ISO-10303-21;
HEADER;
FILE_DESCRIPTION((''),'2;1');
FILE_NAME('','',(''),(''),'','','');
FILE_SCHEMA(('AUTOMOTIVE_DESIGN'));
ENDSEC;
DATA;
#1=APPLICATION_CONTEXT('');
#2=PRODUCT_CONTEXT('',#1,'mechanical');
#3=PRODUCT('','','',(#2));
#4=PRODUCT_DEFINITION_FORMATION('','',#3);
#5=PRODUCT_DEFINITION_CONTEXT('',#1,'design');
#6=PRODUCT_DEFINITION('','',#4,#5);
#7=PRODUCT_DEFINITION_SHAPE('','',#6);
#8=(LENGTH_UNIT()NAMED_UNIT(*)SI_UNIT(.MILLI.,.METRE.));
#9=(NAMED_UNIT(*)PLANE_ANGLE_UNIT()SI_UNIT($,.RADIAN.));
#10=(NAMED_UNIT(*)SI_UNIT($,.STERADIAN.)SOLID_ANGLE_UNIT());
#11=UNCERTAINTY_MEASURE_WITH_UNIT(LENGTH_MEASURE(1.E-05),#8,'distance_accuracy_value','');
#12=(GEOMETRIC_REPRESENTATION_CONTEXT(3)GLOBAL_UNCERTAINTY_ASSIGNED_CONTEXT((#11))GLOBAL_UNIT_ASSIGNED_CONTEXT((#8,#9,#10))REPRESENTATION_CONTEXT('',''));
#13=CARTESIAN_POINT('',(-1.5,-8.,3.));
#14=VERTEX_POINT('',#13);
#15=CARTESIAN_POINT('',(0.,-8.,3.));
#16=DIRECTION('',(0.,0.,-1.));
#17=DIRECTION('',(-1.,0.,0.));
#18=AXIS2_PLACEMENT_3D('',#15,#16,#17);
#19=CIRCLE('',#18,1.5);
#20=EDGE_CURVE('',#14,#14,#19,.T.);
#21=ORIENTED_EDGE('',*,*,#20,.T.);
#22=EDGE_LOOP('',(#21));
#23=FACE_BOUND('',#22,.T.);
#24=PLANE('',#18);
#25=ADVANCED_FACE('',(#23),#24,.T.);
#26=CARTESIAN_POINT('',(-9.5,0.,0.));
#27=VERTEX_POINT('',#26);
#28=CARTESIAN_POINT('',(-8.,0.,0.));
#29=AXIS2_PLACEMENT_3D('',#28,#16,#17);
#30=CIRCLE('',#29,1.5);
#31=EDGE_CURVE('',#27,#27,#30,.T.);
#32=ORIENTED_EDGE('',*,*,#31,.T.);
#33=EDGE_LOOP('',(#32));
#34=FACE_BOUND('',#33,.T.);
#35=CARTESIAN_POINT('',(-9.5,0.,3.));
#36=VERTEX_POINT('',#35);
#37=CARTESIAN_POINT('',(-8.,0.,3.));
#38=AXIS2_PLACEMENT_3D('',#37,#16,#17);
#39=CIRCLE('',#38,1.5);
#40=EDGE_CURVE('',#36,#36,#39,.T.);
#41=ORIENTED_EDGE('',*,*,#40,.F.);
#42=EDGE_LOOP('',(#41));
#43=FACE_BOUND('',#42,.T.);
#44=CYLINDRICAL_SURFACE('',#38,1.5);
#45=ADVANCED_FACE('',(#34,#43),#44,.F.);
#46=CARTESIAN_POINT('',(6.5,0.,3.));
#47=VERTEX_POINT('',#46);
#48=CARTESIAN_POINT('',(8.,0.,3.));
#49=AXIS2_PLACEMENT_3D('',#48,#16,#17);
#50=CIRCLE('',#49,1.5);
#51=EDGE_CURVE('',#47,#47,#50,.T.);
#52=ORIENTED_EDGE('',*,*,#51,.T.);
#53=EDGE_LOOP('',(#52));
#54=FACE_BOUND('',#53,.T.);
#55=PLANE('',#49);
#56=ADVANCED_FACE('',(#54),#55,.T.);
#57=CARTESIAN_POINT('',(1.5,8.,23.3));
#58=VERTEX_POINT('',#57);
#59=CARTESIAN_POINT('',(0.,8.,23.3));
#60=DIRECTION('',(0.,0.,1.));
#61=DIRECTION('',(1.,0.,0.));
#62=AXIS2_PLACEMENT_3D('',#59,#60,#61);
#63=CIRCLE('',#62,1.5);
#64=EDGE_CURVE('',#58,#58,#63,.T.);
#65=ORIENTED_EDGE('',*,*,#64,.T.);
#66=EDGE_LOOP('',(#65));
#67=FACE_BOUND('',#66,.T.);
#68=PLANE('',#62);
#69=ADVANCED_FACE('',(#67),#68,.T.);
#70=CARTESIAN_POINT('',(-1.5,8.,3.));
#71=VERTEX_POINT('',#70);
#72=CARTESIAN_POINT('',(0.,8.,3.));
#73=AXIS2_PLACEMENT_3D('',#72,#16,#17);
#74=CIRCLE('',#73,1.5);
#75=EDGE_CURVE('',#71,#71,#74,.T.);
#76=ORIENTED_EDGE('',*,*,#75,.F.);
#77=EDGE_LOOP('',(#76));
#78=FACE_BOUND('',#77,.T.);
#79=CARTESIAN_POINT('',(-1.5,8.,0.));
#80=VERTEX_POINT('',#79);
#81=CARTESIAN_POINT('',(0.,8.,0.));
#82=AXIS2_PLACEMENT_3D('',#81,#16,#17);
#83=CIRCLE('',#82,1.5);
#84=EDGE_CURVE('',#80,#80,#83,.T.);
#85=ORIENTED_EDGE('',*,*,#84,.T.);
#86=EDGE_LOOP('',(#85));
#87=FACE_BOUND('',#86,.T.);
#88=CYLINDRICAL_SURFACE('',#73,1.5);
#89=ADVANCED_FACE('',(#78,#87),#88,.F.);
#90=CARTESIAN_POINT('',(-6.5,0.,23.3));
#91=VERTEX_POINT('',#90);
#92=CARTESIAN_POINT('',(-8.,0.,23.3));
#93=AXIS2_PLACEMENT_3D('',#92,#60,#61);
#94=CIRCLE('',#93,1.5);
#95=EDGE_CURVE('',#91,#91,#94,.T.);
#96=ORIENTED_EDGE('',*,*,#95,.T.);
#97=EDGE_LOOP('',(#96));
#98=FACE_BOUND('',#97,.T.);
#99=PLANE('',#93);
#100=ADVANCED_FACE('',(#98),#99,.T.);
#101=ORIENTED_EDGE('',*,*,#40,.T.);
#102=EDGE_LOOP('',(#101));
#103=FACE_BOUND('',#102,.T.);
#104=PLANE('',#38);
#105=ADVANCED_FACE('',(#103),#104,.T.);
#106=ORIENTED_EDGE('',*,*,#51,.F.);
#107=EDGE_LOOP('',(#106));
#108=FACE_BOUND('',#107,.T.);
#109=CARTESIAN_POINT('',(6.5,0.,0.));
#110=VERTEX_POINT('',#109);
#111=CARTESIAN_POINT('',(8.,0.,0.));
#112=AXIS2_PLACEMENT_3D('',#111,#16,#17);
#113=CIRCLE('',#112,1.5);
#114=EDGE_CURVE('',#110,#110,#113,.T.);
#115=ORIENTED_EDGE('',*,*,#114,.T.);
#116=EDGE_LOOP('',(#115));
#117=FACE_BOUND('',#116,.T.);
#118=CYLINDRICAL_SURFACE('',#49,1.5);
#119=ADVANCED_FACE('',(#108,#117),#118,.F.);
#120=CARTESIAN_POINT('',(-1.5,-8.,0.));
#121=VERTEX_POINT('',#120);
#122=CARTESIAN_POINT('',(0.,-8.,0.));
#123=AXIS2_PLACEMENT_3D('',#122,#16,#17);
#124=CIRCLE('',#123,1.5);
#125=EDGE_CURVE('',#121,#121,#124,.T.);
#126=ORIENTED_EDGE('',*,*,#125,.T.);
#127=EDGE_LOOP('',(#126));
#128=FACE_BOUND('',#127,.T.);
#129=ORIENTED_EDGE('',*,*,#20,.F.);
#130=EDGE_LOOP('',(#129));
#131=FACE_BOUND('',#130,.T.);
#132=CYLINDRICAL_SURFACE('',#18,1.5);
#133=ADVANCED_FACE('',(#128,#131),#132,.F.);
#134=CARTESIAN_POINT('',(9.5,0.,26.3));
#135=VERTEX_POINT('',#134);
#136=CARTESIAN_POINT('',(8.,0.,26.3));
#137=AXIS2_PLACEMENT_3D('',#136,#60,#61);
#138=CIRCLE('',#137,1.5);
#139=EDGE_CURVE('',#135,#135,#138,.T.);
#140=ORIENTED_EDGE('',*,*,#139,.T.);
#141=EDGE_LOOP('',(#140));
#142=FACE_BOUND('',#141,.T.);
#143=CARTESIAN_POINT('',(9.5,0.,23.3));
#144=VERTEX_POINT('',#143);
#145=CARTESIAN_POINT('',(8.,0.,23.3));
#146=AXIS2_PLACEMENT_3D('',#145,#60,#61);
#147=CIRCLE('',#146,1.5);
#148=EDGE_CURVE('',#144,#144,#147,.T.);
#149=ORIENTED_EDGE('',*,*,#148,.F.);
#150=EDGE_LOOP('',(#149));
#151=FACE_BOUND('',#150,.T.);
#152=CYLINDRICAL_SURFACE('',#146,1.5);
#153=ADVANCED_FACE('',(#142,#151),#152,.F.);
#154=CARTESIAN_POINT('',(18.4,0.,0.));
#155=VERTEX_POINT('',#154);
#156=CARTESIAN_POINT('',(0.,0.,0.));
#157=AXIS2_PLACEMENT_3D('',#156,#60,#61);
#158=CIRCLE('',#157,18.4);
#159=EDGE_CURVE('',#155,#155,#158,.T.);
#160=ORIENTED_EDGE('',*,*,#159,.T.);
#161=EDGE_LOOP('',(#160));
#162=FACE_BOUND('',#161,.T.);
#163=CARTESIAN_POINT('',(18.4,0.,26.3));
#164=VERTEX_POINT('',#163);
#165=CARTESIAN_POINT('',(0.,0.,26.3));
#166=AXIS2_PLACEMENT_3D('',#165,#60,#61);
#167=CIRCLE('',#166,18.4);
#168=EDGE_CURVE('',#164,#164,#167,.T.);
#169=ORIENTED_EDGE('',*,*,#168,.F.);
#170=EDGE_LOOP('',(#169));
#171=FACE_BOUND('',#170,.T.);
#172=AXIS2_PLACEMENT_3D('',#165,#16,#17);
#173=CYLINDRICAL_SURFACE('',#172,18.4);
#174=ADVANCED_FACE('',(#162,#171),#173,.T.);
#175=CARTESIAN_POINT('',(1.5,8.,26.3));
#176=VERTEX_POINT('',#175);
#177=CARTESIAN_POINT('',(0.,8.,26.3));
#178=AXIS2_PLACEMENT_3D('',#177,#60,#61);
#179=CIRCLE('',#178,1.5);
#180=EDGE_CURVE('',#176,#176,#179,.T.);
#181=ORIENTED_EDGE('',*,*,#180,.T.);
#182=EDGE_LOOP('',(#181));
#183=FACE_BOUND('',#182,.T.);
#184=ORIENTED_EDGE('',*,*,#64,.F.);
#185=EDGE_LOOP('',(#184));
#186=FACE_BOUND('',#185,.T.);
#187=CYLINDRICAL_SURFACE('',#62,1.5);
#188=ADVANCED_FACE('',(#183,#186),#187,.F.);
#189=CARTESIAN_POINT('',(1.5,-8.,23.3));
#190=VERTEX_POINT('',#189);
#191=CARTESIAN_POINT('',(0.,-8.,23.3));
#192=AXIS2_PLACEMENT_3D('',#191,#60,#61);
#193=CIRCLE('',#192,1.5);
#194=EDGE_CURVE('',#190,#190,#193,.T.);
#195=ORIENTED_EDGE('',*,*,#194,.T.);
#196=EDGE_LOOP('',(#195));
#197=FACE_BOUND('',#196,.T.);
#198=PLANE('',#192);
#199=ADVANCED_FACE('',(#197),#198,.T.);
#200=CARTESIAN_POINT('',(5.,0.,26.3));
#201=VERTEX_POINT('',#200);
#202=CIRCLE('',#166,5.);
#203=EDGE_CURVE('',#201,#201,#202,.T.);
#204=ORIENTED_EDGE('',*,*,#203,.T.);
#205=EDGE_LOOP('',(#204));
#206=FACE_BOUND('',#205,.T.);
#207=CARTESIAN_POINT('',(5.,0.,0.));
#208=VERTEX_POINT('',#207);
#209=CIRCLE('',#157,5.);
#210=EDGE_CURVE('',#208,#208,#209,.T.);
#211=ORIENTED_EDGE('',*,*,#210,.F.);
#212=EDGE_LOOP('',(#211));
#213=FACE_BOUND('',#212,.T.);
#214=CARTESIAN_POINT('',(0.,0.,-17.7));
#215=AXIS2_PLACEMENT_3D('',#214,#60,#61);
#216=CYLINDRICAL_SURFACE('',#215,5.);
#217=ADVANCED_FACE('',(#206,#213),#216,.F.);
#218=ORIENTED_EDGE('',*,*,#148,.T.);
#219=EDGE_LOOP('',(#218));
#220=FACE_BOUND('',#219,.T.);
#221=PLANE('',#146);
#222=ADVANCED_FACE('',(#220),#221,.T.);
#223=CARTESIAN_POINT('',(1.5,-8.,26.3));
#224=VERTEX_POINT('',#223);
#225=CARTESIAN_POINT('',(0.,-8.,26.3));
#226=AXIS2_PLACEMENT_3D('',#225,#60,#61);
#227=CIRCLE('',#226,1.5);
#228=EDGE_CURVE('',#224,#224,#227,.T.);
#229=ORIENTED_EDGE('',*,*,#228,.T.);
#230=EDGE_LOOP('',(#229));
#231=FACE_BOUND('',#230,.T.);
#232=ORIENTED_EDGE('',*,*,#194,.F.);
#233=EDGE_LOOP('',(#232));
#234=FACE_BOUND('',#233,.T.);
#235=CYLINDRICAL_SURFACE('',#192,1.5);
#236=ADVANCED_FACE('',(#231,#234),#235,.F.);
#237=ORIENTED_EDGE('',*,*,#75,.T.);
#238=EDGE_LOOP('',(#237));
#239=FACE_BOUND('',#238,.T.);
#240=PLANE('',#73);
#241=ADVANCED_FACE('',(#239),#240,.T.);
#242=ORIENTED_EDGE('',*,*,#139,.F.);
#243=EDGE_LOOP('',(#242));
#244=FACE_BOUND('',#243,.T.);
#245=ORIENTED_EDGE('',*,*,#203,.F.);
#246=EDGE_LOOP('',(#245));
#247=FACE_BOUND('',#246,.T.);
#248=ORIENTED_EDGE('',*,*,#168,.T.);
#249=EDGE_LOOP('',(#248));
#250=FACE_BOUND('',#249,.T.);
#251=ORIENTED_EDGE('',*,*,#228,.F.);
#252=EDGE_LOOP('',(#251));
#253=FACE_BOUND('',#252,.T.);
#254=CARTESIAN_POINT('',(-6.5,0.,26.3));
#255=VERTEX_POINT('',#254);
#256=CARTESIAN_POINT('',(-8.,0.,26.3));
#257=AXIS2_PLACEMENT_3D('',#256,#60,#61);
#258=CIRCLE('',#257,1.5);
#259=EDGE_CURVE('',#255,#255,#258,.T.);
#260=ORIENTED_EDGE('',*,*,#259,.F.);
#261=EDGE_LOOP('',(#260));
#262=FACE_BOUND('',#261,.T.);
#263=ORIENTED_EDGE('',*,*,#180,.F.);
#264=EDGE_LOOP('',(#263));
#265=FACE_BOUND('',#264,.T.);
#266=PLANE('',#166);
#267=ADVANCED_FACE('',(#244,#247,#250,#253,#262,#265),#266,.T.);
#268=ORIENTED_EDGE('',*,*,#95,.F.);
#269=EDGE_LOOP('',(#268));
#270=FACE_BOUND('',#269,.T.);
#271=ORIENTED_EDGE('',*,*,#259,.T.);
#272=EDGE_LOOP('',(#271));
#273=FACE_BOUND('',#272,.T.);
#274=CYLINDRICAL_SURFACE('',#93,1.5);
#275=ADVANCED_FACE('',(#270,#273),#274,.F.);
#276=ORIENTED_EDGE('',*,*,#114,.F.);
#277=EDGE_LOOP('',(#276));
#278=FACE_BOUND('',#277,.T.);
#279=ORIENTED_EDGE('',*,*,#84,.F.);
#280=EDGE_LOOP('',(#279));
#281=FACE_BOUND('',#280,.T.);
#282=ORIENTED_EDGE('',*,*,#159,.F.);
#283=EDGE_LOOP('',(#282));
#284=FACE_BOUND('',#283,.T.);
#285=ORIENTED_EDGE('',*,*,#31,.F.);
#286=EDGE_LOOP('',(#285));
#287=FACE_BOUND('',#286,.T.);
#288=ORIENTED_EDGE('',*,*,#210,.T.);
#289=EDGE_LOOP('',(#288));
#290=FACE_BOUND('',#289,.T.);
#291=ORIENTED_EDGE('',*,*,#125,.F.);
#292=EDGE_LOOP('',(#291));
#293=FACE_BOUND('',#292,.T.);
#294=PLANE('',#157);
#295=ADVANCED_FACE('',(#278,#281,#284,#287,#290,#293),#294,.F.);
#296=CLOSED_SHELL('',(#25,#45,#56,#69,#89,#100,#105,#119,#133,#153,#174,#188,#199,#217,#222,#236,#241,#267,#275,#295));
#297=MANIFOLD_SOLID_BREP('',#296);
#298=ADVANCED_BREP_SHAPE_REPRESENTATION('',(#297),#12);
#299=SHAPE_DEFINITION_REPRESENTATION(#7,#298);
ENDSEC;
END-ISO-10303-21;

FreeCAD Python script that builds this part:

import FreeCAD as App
import Part
import Sketcher

doc = App.newDocument("Part")
body = doc.addObject("PartDesign::Body", "Body")

# Sketch on XY plane
sketch1 = doc.addObject("Sketcher::SketchObject", "Sketch")
body.addObject(sketch1)
sketch1.AttachmentSupport = (doc.XY_Plane, [""])
sketch1.MapMode = "FlatFace"
sketch1.addGeometry(Part.Circle(App.Vector(0, 0, 0), App.Vector(0, 0, 1), 18.4), False)
sketch1.addConstraint([
    Sketcher.Constraint("Coincident", 0, 3, -1, 1),
    Sketcher.Constraint("Diameter", 0, 36.8),
])
pad1 = doc.addObject("PartDesign::Pad", "Pad")
body.addObject(pad1)
pad1.Profile = sketch1
pad1.Length = 26.3

# Sketch on XY plane
sketch2 = doc.addObject("Sketcher::SketchObject", "Sketch001")
body.addObject(sketch2)
sketch2.AttachmentSupport = (doc.XY_Plane, [""])
sketch2.MapMode = "FlatFace"
sketch2.AttachmentOffset = App.Placement(App.Vector(0, 0, 26.3), App.Rotation())
sketch2.addGeometry([
    Part.Circle(App.Vector(0, 8, 0), App.Vector(0, 0, 1), 1.5),
    Part.Circle(App.Vector(8, 0, 0), App.Vector(0, 0, 1), 1.5),
    Part.Circle(App.Vector(0, -8, 0), App.Vector(0, 0, 1), 1.5),
    Part.Circle(App.Vector(-8, 0, 0), App.Vector(0, 0, 1), 1.5),
], False)
sketch2.addConstraint([
    Sketcher.Constraint("Equal", 0, 1),
    Sketcher.Constraint("Equal", 1, 2),
    Sketcher.Constraint("Equal", 2, 3),
    Sketcher.Constraint("Symmetric", 0, 3, 2, 3, -1, 1),
    Sketcher.Constraint("Symmetric", 1, 3, 3, 3, -1, 1),
    Sketcher.Constraint("PointOnObject", 0, 3, -2),
    Sketcher.Constraint("PointOnObject", 1, 3, -1),
    Sketcher.Constraint("Diameter", 0, 3.0),
    Sketcher.Constraint("DistanceY", -1, 1, 0, 3, 8.0),
    Sketcher.Constraint("DistanceX", -1, 1, 1, 3, 8.0),
])
pocket1 = doc.addObject("PartDesign::Pocket", "Pocket")
body.addObject(pocket1)
pocket1.Profile = sketch2
pocket1.Length = 3

# Sketch on XY plane
sketch3 = doc.addObject("Sketcher::SketchObject", "Sketch002")
body.addObject(sketch3)
sketch3.AttachmentSupport = (doc.XY_Plane, [""])
sketch3.MapMode = "FlatFace"
sketch3.AttachmentOffset = App.Placement(App.Vector(0, 0, 26.3), App.Rotation())
sketch3.addGeometry(Part.Circle(App.Vector(0, 0, 0), App.Vector(0, 0, 1), 5), False)
sketch3.addConstraint([
    Sketcher.Constraint("Coincident", 0, 3, -1, 1),
    Sketcher.Constraint("Diameter", 0, 10.0),
])
pocket2 = doc.addObject("PartDesign::Pocket", "Pocket001")
body.addObject(pocket2)
pocket2.Profile = sketch3
pocket2.Length = 44

# Sketch on XY plane
sketch4 = doc.addObject("Sketcher::SketchObject", "Sketch003")
body.addObject(sketch4)
sketch4.AttachmentSupport = (doc.XY_Plane, [""])
sketch4.MapMode = "FlatFace"
sketch4.AttachmentOffset = App.Placement(App.Vector(0, 0, 3), App.Rotation())
sketch4.addGeometry([
    Part.Circle(App.Vector(0, 8, 0), App.Vector(0, 0, 1), 1.5),
    Part.Circle(App.Vector(-8, 0, 0), App.Vector(0, 0, 1), 1.5),
    Part.Circle(App.Vector(0, -8, 0), App.Vector(0, 0, 1), 1.5),
    Part.Circle(App.Vector(8, 0, 0), App.Vector(0, 0, 1), 1.5),
], False)
sketch4.addConstraint([
    Sketcher.Constraint("Equal", 0, 1),
    Sketcher.Constraint("Equal", 1, 2),
    Sketcher.Constraint("Equal", 2, 3),
    Sketcher.Constraint("Symmetric", 0, 3, 2, 3, -1, 1),
    Sketcher.Constraint("Symmetric", 1, 3, 3, 3, -1, 1),
    Sketcher.Constraint("PointOnObject", 0, 3, -2),
    Sketcher.Constraint("PointOnObject", 1, 3, -1),
    Sketcher.Constraint("Diameter", 0, 3.0),
    Sketcher.Constraint("DistanceY", -1, 1, 0, 3, 8.0),
    Sketcher.Constraint("DistanceX", 1, 3, -1, 1, 8.0),
])
pocket3 = doc.addObject("PartDesign::Pocket", "Pocket002")
body.addObject(pocket3)
pocket3.Profile = sketch4
pocket3.Length = 3

doc.recompute()
